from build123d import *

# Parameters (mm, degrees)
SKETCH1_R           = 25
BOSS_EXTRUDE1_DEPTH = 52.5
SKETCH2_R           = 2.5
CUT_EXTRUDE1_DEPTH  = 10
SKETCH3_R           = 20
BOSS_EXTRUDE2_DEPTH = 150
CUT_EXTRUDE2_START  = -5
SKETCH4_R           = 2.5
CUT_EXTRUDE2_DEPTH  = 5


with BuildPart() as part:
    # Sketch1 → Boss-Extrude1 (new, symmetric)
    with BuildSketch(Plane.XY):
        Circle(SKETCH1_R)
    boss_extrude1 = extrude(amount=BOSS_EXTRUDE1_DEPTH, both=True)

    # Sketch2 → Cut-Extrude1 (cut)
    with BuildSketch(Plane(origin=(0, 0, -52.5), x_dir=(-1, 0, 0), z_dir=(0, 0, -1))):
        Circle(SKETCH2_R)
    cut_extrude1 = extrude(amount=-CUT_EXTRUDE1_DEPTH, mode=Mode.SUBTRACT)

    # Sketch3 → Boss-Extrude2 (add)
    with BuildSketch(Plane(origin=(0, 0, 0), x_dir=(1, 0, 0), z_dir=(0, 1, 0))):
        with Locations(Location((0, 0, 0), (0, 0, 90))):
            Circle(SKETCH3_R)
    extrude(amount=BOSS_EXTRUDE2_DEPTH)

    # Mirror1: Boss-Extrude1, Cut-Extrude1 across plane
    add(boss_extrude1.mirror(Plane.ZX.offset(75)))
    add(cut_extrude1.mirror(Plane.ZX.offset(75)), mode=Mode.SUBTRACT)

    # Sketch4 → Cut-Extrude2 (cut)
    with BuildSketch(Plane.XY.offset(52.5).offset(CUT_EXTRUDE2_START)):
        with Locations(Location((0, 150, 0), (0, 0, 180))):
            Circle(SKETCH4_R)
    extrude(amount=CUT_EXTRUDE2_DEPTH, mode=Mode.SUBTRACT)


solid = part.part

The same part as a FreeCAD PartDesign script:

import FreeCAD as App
import Part
import Sketcher
Q = App.Units.Quantity

doc = App.newDocument("Part")
params = doc.addObject("Spreadsheet::Sheet", "Params")
for row, (alias, value) in enumerate([
    ("sketch1_diameter", "50 mm"),
    ("pad1_length", "105 mm"),
    ("sketch2_diameter", "5 mm"),
    ("pocket1_length", "10 mm"),
    ("sketch3_diameter", "40 mm"),
    ("pad2_length", "150 mm"),
    ("sketch4_diameter", "5 mm"),
    ("pocket2_length", "5 mm"),
], start=1):
    params.set(f"A{row}", alias)
    params.set(f"B{row}", "=" + value)
    params.setAlias(f"B{row}", alias)

body = doc.addObject("PartDesign::Body", "Body")

sketch1 = body.newObject("Sketcher::SketchObject", "Sketch")
sketch1.AttachmentSupport = (doc.getObject("XY_Plane"), [""])
sketch1.MapMode = "FlatFace"
sketch1.addGeometry(Part.Circle(App.Vector(0, 0, 0), App.Vector(0, 0, 1), 25), False)
sketch1.addConstraint([
    Sketcher.Constraint("Coincident", 0, 3, -1, 1),
    Sketcher.Constraint("Diameter", 0, Q("50 mm")),
])
sketch1.setExpression("Constraints[1]", "Params.sketch1_diameter")
pad1 = body.newObject("PartDesign::Pad", "Pad")
pad1.Profile = sketch1
pad1.setExpression("Length", "Params.pad1_length")
pad1.Midplane = True

sketch2 = body.newObject("Sketcher::SketchObject", "Sketch001")
sketch2.AttachmentSupport = (doc.getObject("XY_Plane"), [""])
sketch2.MapMode = "FlatFace"
sketch2.AttachmentOffset = App.Placement(App.Vector(0, 0, -52.5), App.Rotation())
sketch2.addGeometry(Part.Circle(App.Vector(0, 0, 0), App.Vector(0, 0, 1), 2.5), False)
sketch2.addConstraint([
    Sketcher.Constraint("Coincident", 0, 3, -1, 1),
    Sketcher.Constraint("Diameter", 0, Q("5 mm")),
])
sketch2.setExpression("Constraints[1]", "Params.sketch2_diameter")
pocket1 = body.newObject("PartDesign::Pocket", "Pocket")
pocket1.Profile = sketch2
pocket1.setExpression("Length", "Params.pocket1_length")
pocket1.Reversed = True

sketch3 = body.newObject("Sketcher::SketchObject", "Sketch002")
sketch3.AttachmentSupport = (doc.getObject("XZ_Plane"), [""])
sketch3.MapMode = "FlatFace"
sketch3.addGeometry(Part.Circle(App.Vector(0, 0, 0), App.Vector(0, 0, 1), 20), False)
sketch3.addConstraint([
    Sketcher.Constraint("Coincident", 0, 3, -1, 1),
    Sketcher.Constraint("Diameter", 0, Q("40 mm")),
])
sketch3.setExpression("Constraints[1]", "Params.sketch3_diameter")
pad2 = body.newObject("PartDesign::Pad", "Pad001")
pad2.Profile = sketch3
pad2.setExpression("Length", "Params.pad2_length")
pad2.Reversed = True
doc.recompute()

datumplane = body.newObject("PartDesign::Plane", "DatumPlane")
datumplane.AttachmentSupport = (doc.getObject("XZ_Plane"), [""])
datumplane.MapMode = "FlatFace"
datumplane.AttachmentOffset = App.Placement(App.Vector(0, 0, -75), App.Rotation())
mirrored = body.newObject("PartDesign::Mirrored", "Mirrored")
mirrored.Originals = [pad1, pocket1]
mirrored.MirrorPlane = (datumplane, [""])
body.Tip = mirrored

sketch4 = body.newObject("Sketcher::SketchObject", "Sketch003")
sketch4.AttachmentSupport = (doc.getObject("XY_Plane"), [""])
sketch4.MapMode = "FlatFace"
sketch4.AttachmentOffset = App.Placement(App.Vector(0, 0, 47.5), App.Rotation())
sketch4.addGeometry(Part.Circle(App.Vector(0, 150, 0), App.Vector(0, 0, 1), 2.5), False)
sketch4.addConstraint([
    Sketcher.Constraint("PointOnObject", 0, 3, -2),
    Sketcher.Constraint("Diameter", 0, Q("5 mm")),
    Sketcher.Constraint("DistanceY", -1, 1, 0, 3, Q("150 mm")),
])
sketch4.setExpression("Constraints[1]", "Params.sketch4_diameter")
pocket2 = body.newObject("PartDesign::Pocket", "Pocket001")
pocket2.Profile = sketch4
pocket2.setExpression("Length", "Params.pocket2_length")
pocket2.Reversed = True

doc.recompute()
